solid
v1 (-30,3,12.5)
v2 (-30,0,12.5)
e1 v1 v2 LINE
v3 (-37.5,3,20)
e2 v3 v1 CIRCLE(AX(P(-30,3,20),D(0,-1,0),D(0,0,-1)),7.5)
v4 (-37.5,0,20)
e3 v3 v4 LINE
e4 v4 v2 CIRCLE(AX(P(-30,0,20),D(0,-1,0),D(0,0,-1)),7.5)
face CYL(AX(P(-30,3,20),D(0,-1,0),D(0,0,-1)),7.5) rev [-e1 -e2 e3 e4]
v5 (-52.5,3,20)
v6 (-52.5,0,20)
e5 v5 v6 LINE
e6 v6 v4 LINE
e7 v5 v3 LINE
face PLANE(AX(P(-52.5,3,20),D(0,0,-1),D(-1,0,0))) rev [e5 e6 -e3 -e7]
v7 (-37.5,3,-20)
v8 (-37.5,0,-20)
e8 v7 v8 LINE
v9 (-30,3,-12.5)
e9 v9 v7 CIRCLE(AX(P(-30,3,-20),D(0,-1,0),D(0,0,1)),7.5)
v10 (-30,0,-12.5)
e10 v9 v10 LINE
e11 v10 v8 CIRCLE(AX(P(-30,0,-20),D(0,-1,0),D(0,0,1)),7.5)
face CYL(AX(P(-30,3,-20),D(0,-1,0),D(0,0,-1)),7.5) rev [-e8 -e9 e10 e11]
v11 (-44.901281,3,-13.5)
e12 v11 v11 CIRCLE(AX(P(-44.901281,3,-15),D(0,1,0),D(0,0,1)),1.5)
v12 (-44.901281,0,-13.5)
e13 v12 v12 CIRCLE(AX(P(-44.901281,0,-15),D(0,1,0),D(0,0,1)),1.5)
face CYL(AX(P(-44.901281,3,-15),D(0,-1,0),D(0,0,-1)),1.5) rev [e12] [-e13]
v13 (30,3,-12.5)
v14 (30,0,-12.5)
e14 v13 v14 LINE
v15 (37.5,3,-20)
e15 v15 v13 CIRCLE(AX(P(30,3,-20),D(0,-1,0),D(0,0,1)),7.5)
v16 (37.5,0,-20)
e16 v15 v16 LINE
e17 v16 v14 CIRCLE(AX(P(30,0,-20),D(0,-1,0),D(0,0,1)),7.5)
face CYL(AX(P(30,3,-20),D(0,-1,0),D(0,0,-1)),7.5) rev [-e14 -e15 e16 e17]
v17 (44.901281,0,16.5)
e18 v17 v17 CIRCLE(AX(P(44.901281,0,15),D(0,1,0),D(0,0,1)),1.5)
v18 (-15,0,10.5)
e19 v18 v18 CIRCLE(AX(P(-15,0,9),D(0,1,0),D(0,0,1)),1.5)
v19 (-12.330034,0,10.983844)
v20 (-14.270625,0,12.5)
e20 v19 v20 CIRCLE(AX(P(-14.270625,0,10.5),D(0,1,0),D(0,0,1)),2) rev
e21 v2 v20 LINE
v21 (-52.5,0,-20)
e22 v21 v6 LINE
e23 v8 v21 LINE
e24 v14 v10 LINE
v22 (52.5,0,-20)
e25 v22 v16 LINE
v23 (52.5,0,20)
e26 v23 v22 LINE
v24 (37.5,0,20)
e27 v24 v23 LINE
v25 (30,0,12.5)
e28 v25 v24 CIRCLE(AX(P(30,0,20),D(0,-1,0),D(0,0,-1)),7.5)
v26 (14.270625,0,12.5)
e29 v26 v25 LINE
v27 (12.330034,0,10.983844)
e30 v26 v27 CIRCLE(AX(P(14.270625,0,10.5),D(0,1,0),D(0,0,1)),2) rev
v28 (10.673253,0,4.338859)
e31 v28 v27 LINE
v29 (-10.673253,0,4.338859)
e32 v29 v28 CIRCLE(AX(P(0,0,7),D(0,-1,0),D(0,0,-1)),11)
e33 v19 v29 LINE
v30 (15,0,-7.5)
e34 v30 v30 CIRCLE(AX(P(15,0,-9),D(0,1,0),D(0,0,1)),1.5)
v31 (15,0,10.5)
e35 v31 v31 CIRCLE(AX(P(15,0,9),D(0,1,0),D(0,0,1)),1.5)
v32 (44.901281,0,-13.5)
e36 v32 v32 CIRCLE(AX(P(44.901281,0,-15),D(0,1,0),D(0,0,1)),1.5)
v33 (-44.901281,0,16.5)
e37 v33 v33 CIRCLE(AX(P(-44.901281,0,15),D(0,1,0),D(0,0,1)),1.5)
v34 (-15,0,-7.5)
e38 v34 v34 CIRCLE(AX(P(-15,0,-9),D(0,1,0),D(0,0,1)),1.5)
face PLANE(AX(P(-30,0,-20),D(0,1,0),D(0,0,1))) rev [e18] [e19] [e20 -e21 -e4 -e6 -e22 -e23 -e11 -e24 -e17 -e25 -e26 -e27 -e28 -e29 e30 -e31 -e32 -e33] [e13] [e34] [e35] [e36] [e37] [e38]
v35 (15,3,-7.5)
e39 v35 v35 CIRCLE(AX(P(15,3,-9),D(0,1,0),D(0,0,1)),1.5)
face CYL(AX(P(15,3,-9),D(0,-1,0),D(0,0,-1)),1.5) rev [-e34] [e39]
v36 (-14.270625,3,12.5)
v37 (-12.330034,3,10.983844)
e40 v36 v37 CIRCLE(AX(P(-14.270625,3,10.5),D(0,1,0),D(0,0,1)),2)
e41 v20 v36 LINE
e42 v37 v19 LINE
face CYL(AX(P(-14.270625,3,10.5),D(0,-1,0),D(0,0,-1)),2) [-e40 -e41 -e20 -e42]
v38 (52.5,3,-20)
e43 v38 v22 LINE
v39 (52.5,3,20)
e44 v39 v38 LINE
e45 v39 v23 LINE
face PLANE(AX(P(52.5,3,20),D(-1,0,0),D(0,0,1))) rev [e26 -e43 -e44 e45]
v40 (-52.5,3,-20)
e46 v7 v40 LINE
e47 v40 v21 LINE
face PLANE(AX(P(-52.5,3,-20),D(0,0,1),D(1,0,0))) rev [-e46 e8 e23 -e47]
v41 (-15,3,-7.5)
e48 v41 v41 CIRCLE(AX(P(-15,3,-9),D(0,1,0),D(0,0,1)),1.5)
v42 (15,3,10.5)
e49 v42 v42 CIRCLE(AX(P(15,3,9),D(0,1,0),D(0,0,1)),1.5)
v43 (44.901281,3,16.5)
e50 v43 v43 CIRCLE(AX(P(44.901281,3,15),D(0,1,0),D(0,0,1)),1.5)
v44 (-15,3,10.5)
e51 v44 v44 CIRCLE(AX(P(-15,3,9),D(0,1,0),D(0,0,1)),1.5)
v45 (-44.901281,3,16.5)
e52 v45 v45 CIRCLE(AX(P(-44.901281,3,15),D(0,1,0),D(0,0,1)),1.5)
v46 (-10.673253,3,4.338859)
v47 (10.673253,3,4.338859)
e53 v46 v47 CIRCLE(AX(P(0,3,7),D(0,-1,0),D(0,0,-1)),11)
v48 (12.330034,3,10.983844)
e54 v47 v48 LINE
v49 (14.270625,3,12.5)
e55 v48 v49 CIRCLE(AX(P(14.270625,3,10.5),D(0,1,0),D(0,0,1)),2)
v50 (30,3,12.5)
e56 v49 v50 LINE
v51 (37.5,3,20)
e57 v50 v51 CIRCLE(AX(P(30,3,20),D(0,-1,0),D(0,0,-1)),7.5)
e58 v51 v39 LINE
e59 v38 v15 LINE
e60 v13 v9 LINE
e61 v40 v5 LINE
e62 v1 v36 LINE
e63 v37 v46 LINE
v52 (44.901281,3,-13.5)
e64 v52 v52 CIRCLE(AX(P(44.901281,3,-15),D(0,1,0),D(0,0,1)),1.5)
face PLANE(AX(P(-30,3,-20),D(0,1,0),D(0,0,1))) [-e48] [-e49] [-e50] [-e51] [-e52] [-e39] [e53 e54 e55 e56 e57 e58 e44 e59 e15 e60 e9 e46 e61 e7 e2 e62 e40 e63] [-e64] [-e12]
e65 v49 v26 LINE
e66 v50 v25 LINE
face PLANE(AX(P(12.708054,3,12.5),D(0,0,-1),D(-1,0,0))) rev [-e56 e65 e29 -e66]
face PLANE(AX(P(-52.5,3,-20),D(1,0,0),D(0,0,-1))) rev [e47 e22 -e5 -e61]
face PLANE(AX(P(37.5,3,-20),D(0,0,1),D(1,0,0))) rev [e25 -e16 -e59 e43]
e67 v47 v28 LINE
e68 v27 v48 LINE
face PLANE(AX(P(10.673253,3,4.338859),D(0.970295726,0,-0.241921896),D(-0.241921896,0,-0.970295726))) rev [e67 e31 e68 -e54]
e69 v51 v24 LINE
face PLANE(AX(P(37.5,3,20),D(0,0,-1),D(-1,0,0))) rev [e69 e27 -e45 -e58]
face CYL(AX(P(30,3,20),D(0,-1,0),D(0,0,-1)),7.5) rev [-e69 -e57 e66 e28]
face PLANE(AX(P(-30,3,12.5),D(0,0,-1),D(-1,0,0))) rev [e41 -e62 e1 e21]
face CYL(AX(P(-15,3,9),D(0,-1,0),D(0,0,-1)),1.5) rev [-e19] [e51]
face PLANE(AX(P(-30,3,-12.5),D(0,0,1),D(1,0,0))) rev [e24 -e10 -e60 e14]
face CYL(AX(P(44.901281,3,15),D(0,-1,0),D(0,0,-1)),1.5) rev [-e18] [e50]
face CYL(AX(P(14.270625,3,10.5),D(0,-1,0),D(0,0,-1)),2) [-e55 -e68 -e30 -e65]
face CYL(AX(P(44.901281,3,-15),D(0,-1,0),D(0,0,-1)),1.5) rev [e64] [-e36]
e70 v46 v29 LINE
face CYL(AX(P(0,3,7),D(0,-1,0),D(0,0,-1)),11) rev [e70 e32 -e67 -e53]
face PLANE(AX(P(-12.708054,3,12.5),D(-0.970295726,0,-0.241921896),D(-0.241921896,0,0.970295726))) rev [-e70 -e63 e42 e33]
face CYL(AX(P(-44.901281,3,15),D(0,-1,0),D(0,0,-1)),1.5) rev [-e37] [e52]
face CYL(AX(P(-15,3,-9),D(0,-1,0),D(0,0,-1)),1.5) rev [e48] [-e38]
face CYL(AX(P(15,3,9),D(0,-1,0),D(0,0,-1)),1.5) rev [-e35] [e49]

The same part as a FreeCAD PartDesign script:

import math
import FreeCAD as App
import Part
import Sketcher

V = App.Vector
Q = App.Units.Quantity


def edges_at(feature, points):
    """Names of the edges that pass closest to the given points."""
    edges = feature.Shape.Edges
    near = lambda p: min(range(len(edges)), key=lambda i: edges[i].distToShape(Part.Vertex(*p))[0])
    return sorted({f"Edge{near(p) + 1}" for p in points})

doc = App.newDocument("Part")
body = doc.addObject("PartDesign::Body", "Body")

# Sketch on XZ plane
sketch1 = doc.addObject("Sketcher::SketchObject", "Sketch")
body.addObject(sketch1)
sketch1.AttachmentSupport = (doc.XZ_Plane, [""])
sketch1.MapMode = "FlatFace"
sketch1.addGeometry([
    Part.LineSegment(V(-52.5, -20, 0), V(-52.5, 20, 0)),  # 0
    Part.LineSegment(V(-52.5, 20, 0), V(-37.5, 20, 0)),  # 1
    Part.ArcOfCircle(Part.Circle(V(-30, 20, 0), V(0, 0, 1), 7.5), math.radians(180), math.radians(270)),  # 2
    Part.LineSegment(V(-30, 12.5, 0), V(-12.7, 12.5, 0)),  # 3
    Part.LineSegment(V(-12.7, 12.5, 0), V(-10.7, 4.3, 0)),  # 4
    Part.ArcOfCircle(Part.Circle(V(0, 7, 0), V(0, 0, 1), 11), math.radians(-166), math.radians(-14)),  # 5
    Part.LineSegment(V(10.7, 4.3, 0), V(12.7, 12.5, 0)),  # 6
    Part.LineSegment(V(12.7, 12.5, 0), V(30, 12.5, 0)),  # 7
    Part.ArcOfCircle(Part.Circle(V(30, 20, 0), V(0, 0, 1), 7.5), math.radians(-90), math.radians(0)),  # 8
    Part.LineSegment(V(37.5, 20, 0), V(52.5, 20, 0)),  # 9
    Part.LineSegment(V(52.5, 20, 0), V(52.5, -20, 0)),  # 10
    Part.LineSegment(V(52.5, -20, 0), V(37.5, -20, 0)),  # 11
    Part.ArcOfCircle(Part.Circle(V(30, -20, 0), V(0, 0, 1), 7.5), math.radians(0), math.radians(90)),  # 12
    Part.LineSegment(V(30, -12.5, 0), V(-30, -12.5, 0)),  # 13
    Part.ArcOfCircle(Part.Circle(V(-30, -20, 0), V(0, 0, 1), 7.5), math.radians(90), math.radians(180)),  # 14
    Part.LineSegment(V(-37.5, -20, 0), V(-52.5, -20, 0)),  # 15
    Part.Circle(V(-44.9, 15, 0), V(0, 0, 1), 1.5),  # 16
    Part.Circle(V(-15, 9, 0), V(0, 0, 1), 1.5),  # 17
    Part.Circle(V(15, 9, 0), V(0, 0, 1), 1.5),  # 18
    Part.Circle(V(44.9, 15, 0), V(0, 0, 1), 1.5),  # 19
    Part.Circle(V(-44.9, -15, 0), V(0, 0, 1), 1.5),  # 20
    Part.Circle(V(-15, -9, 0), V(0, 0, 1), 1.5),  # 21
    Part.Circle(V(15, -9, 0), V(0, 0, 1), 1.5),  # 22
    Part.Circle(V(44.9, -15, 0), V(0, 0, 1), 1.5),  # 23
], False)
sketch1.addConstraint([
    Sketcher.Constraint("Coincident", 0, 2, 1, 1),
    Sketcher.Constraint("Coincident", 1, 2, 2, 1),
    Sketcher.Constraint("Tangent", 2, 2, 3, 1),
    Sketcher.Constraint("Coincident", 3, 2, 4, 1),
    Sketcher.Constraint("Tangent", 4, 2, 5, 1),
    Sketcher.Constraint("Tangent", 5, 2, 6, 1),
    Sketcher.Constraint("Coincident", 6, 2, 7, 1),
    Sketcher.Constraint("Tangent", 7, 2, 8, 1),
    Sketcher.Constraint("Coincident", 8, 2, 9, 1),
    Sketcher.Constraint("Coincident", 9, 2, 10, 1),
    Sketcher.Constraint("Coincident", 10, 2, 11, 1),
    Sketcher.Constraint("Coincident", 11, 2, 12, 1),
    Sketcher.Constraint("Tangent", 12, 2, 13, 1),
    Sketcher.Constraint("Tangent", 13, 2, 14, 1),
    Sketcher.Constraint("Coincident", 14, 2, 15, 1),
    Sketcher.Constraint("Coincident", 15, 2, 0, 1),
    Sketcher.Constraint("Vertical", 0),
    Sketcher.Constraint("Horizontal", 1),
    Sketcher.Constraint("Horizontal", 3),
    Sketcher.Constraint("Horizontal", 7),
    Sketcher.Constraint("Horizontal", 9),
    Sketcher.Constraint("Vertical", 10),
    Sketcher.Constraint("Horizontal", 11),
    Sketcher.Constraint("Horizontal", 13),
    Sketcher.Constraint("Horizontal", 15),
    Sketcher.Constraint("Equal", 2, 8),
    Sketcher.Constraint("Equal", 8, 12),
    Sketcher.Constraint("Equal", 12, 14),
    Sketcher.Constraint("Equal", 16, 17),
    Sketcher.Constraint("Equal", 17, 18),
    Sketcher.Constraint("Equal", 18, 19),
    Sketcher.Constraint("Equal", 19, 20),
    Sketcher.Constraint("Equal", 20, 21),
    Sketcher.Constraint("Equal", 21, 22),
    Sketcher.Constraint("Equal", 22, 23),
    Sketcher.Constraint("Symmetric", 2, 3, 12, 3, -1, 1),
    Sketcher.Constraint("Symmetric", 8, 3, 14, 3, -1, 1),
    Sketcher.Constraint("Symmetric", 19, 3, 20, 3, -1, 1),
    Sketcher.Constraint("Symmetric", 18, 3, 21, 3, -1, 1),
    Sketcher.Constraint("Symmetric", 17, 3, 22, 3, -1, 1),
    Sketcher.Constraint("Symmetric", 16, 3, 23, 3, -1, 1),
    Sketcher.Constraint("Symmetric", 0, 2, 10, 2, -1, 1),
    Sketcher.Constraint("Symmetric", 17, 3, 18, 3, -2),
    Sketcher.Constraint("Symmetric", 16, 3, 19, 3, -2),
    Sketcher.Constraint("Symmetric", 4, 2, 5, 2, -2),
    Sketcher.Constraint("Symmetric", 1, 2, 8, 2, -2),
    Sketcher.Constraint("Horizontal", 8, 3, 0, 2),
    Sketcher.Constraint("Horizontal", 11, 2, 14, 2),
    Sketcher.Constraint("Diameter", 16, Q("3 mm")),
    Sketcher.Constraint("Radius", 5, Q("11 mm")),
    Sketcher.Constraint("Radius", 2, Q("7.5 mm")),
    Sketcher.Constraint("DistanceX", 1, 1, 1, 2, Q("15 mm")),
    Sketcher.Constraint("DistanceX", 13, 2, 13, 1, Q("60 mm")),
    Sketcher.Constraint("DistanceY", 0, 1, 0, 2, Q("40 mm")),
    Sketcher.Constraint("Angle", 4, Q("-76 deg")),
    Sketcher.Constraint("DistanceY", -1, 1, 5, 3, Q("7 mm")),
    Sketcher.Constraint("DistanceY", -1, 1, 16, 3, Q("15 mm")),
    Sketcher.Constraint("DistanceX", 17, 3, -1, 1, Q("15 mm")),
    Sketcher.Constraint("DistanceY", -1, 1, 17, 3, Q("9 mm")),
    Sketcher.Constraint("DistanceX", 16, 3, -1, 1, Q("44.901281 mm")),
])
pad1 = doc.addObject("PartDesign::Pad", "Pad")
body.addObject(pad1)
pad1.Profile = sketch1
pad1.Length = 3
pad1.Reversed = True
doc.recompute()

fillet = doc.addObject("PartDesign::Fillet", "Fillet")
body.addObject(fillet)
fillet.Base = (pad1, edges_at(pad1, [(12.708, 1.5, 12.5), (-12.708, 1.5, 12.5)]))
fillet.Radius = 2

doc.recompute()
